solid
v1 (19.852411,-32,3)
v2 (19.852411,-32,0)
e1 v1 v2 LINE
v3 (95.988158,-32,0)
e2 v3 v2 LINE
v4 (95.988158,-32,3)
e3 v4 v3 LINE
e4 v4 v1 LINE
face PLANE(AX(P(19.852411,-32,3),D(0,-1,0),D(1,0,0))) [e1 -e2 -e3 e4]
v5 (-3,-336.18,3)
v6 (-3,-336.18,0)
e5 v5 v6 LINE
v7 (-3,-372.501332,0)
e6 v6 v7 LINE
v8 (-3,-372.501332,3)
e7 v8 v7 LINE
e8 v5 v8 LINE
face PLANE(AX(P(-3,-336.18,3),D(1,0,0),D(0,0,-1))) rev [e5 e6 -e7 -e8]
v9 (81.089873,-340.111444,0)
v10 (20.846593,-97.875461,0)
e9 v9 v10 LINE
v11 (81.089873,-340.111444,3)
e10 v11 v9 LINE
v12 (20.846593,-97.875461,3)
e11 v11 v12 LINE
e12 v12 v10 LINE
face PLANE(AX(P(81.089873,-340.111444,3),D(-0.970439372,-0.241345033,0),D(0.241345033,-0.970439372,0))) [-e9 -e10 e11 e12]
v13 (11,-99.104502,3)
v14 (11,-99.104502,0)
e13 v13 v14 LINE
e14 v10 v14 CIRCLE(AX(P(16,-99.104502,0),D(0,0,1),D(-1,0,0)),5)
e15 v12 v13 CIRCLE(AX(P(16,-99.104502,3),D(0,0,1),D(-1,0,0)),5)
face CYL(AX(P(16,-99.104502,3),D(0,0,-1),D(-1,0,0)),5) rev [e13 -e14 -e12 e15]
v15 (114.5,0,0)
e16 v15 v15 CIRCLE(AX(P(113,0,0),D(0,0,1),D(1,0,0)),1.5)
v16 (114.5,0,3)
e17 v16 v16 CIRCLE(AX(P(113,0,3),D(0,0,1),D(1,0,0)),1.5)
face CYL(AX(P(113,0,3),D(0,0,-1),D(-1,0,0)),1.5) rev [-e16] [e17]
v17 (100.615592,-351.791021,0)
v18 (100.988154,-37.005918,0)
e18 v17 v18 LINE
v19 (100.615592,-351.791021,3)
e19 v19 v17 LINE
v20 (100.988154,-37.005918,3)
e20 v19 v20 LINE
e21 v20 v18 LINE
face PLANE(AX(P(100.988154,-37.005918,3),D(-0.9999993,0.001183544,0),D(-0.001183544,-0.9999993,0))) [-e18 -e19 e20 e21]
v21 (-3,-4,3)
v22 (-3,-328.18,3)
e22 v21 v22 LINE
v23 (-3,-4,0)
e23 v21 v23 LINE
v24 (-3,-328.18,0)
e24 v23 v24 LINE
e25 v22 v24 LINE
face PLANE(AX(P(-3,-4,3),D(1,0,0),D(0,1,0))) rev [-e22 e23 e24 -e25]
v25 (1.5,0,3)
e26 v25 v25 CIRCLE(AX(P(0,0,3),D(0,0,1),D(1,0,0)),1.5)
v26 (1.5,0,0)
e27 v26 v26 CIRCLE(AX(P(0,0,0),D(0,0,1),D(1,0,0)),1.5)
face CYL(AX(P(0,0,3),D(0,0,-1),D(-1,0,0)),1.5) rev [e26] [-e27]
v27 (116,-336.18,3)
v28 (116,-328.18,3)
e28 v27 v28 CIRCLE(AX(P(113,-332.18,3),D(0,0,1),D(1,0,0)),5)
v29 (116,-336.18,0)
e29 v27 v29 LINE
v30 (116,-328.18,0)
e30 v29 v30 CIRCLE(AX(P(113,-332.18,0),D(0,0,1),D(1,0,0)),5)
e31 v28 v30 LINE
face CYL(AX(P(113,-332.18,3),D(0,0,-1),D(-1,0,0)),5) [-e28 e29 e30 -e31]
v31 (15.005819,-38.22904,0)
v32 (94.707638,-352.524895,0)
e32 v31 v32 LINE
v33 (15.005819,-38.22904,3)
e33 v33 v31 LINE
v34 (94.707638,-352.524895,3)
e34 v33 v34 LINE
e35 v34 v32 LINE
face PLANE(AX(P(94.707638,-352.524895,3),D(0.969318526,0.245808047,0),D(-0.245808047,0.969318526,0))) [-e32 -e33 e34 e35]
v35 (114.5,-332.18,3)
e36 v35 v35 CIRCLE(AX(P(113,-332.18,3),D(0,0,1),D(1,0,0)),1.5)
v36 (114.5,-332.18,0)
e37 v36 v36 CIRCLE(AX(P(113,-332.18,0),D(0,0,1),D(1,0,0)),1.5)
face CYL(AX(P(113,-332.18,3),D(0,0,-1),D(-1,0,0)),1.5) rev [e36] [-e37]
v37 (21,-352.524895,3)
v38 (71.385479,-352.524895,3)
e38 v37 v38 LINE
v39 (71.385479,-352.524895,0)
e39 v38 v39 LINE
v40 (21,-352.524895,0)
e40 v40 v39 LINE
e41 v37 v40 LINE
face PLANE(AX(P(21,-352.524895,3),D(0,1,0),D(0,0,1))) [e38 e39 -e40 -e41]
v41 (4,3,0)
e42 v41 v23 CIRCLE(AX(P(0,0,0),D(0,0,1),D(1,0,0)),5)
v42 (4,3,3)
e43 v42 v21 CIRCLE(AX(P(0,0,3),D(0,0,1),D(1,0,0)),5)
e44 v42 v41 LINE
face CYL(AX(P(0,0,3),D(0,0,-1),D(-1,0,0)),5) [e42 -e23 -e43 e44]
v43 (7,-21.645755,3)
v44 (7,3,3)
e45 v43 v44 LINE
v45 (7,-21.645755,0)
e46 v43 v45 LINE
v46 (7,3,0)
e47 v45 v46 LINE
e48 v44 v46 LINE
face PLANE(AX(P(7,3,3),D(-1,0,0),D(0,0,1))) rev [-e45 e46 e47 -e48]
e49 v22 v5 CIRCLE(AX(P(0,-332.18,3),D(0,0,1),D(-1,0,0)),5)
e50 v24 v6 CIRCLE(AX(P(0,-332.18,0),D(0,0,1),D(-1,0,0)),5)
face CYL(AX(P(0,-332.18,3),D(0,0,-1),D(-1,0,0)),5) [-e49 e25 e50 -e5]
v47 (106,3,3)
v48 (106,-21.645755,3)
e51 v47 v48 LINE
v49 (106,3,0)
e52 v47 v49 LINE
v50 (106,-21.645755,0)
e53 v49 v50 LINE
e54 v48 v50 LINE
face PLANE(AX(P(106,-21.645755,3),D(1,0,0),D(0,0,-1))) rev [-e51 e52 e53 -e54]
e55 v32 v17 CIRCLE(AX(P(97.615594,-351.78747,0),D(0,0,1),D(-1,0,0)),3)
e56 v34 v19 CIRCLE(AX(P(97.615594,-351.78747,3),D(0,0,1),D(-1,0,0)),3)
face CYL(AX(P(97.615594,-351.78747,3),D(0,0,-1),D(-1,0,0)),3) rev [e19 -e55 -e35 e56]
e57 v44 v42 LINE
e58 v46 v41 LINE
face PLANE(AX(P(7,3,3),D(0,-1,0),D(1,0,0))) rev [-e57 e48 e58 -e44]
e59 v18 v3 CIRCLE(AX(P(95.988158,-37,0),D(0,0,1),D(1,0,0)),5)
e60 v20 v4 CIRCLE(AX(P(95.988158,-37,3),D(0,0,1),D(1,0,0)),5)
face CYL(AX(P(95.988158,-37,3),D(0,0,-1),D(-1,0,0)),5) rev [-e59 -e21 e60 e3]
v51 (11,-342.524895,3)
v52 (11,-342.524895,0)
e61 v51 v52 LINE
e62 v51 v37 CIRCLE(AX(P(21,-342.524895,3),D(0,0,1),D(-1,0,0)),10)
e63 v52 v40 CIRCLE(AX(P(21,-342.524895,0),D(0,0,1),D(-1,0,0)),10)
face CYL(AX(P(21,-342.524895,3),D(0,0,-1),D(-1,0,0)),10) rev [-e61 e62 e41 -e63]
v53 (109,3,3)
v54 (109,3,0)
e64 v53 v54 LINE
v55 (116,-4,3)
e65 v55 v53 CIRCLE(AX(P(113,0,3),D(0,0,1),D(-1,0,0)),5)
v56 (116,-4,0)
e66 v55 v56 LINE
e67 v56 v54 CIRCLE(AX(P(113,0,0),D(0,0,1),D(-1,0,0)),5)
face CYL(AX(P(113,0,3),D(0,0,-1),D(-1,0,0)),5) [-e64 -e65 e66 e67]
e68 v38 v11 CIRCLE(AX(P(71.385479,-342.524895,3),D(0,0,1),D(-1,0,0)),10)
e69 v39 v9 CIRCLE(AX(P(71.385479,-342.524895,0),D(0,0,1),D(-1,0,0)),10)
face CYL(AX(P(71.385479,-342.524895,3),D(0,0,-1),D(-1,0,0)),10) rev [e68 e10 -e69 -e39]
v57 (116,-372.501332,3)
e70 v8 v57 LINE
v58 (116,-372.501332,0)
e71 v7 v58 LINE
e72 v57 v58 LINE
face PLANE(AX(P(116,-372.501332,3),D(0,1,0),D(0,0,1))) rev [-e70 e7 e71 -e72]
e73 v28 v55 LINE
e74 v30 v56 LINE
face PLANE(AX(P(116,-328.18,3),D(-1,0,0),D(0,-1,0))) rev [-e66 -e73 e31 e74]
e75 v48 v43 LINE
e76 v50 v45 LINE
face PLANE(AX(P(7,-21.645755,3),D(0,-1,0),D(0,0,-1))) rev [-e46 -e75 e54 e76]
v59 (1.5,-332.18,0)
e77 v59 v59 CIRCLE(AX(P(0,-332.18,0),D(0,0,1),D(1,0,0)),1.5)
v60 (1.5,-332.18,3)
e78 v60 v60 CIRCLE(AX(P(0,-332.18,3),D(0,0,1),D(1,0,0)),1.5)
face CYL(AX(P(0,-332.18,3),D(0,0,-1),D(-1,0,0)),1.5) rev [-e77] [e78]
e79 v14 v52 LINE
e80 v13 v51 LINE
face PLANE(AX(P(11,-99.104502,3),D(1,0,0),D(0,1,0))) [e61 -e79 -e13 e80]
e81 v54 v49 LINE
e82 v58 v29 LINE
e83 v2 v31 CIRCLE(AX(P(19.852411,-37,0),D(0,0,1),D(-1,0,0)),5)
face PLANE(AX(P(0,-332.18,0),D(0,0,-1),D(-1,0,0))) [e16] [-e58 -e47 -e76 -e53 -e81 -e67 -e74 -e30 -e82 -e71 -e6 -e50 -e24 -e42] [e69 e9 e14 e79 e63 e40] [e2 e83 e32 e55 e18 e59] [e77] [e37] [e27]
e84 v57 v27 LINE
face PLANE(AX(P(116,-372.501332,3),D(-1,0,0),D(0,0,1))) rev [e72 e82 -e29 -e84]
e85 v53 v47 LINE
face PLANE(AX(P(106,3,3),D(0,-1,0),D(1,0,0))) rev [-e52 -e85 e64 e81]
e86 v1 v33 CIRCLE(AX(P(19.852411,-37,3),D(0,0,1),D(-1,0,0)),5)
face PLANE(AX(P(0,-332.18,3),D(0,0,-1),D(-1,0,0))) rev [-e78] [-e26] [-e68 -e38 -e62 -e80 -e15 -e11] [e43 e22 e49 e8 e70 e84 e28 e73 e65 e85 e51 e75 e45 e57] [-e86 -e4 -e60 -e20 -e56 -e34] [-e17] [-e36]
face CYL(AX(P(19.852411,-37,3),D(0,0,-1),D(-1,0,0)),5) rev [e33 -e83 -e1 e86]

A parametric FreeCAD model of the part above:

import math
import FreeCAD as App
import Part
import Sketcher
Q = App.Units.Quantity

doc = App.newDocument("Part")
body = doc.addObject("PartDesign::Body", "Body")

# Sketch on XY plane
sketch1 = body.newObject("Sketcher::SketchObject", "Sketch")
sketch1.AttachmentSupport = (doc.getObject("XY_Plane"), [""])
sketch1.MapMode = "FlatFace"
sketch1.addGeometry([
    Part.LineSegment(App.Vector(-3, -336.18, 0), App.Vector(-3, -372.501332, 0)),  # 0
    Part.LineSegment(App.Vector(-3, -372.501332, 0), App.Vector(116, -372.501332, 0)),  # 1
    Part.LineSegment(App.Vector(116, -372.501332, 0), App.Vector(116, -336.18, 0)),  # 2
    Part.ArcOfCircle(Part.Circle(App.Vector(113, -332.18, 0), App.Vector(0, 0, 1), 5), math.radians(-53.130102), math.radians(53.130102)),  # 3
    Part.LineSegment(App.Vector(116, -328.18, 0), App.Vector(116, -4, 0)),  # 4
    Part.ArcOfCircle(Part.Circle(App.Vector(113, 0, 0), App.Vector(0, 0, 1), 5), math.radians(-53.130102), math.radians(143.130102)),  # 5
    Part.LineSegment(App.Vector(109, 3, 0), App.Vector(106, 3, 0)),  # 6
    Part.LineSegment(App.Vector(106, 3, 0), App.Vector(106, -21.645755, 0)),  # 7
    Part.LineSegment(App.Vector(106, -21.645755, 0), App.Vector(7, -21.645755, 0)),  # 8
    Part.LineSegment(App.Vector(7, -21.645755, 0), App.Vector(7, 3, 0)),  # 9
    Part.LineSegment(App.Vector(7, 3, 0), App.Vector(4, 3, 0)),  # 10
    Part.ArcOfCircle(Part.Circle(App.Vector(0, 0, 0), App.Vector(0, 0, 1), 5), math.radians(36.869898), math.radians(233.130102)),  # 11
    Part.LineSegment(App.Vector(-3, -4, 0), App.Vector(-3, -328.18, 0)),  # 12
    Part.ArcOfCircle(Part.Circle(App.Vector(0, -332.18, 0), App.Vector(0, 0, 1), 5), math.radians(126.869898), math.radians(233.130102)),  # 13
    Part.Circle(App.Vector(0, -332.18, 0), App.Vector(0, 0, 1), 1.5),  # 14
    Part.LineSegment(App.Vector(11, -342.524895, 0), App.Vector(11, -99.104502, 0)),  # 15
    Part.ArcOfCircle(Part.Circle(App.Vector(16, -99.104502, 0), App.Vector(0, 0, 1), 5), math.radians(14.229592), math.radians(180)),  # 16
    Part.LineSegment(App.Vector(20.846593, -97.875461, 0), App.Vector(81.089873, -340.111444, 0)),  # 17
    Part.ArcOfCircle(Part.Circle(App.Vector(71.385479, -342.524895, 0), App.Vector(0, 0, 1), 10), math.radians(-90), math.radians(13.965939)),  # 18
    Part.LineSegment(App.Vector(71.385479, -352.524895, 0), App.Vector(21, -352.524895, 0)),  # 19
    Part.ArcOfCircle(Part.Circle(App.Vector(21, -342.524895, 0), App.Vector(0, 0, 1), 10), math.radians(180), math.radians(270)),  # 20
    Part.Circle(App.Vector(113, -332.18, 0), App.Vector(0, 0, 1), 1.5),  # 21
    Part.ArcOfCircle(Part.Circle(App.Vector(95.988158, -37, 0), App.Vector(0, 0, 1), 5), math.radians(-0.067812), math.radians(90)),  # 22
    Part.LineSegment(App.Vector(100.988154, -37.005918, 0), App.Vector(100.615592, -351.791021, 0)),  # 23
    Part.ArcOfCircle(Part.Circle(App.Vector(97.615594, -351.78747, 0), App.Vector(0, 0, 1), 3), math.radians(-165.770408), math.radians(-0.067812)),  # 24
    Part.LineSegment(App.Vector(94.707638, -352.524895, 0), App.Vector(15.005819, -38.22904, 0)),  # 25
    Part.ArcOfCircle(Part.Circle(App.Vector(19.852411, -37, 0), App.Vector(0, 0, 1), 5), math.radians(90), math.radians(194.229592)),  # 26
    Part.LineSegment(App.Vector(19.852411, -32, 0), App.Vector(95.988158, -32, 0)),  # 27
    Part.Circle(App.Vector(0, 0, 0), App.Vector(0, 0, 1), 1.5),  # 28
    Part.Circle(App.Vector(113, 0, 0), App.Vector(0, 0, 1), 1.5),  # 29
], False)
sketch1.addConstraint([
    Sketcher.Constraint("Coincident", 0, 2, 1, 1),
    Sketcher.Constraint("Coincident", 1, 2, 2, 1),
    Sketcher.Constraint("Coincident", 2, 2, 3, 1),
    Sketcher.Constraint("Coincident", 3, 2, 4, 1),
    Sketcher.Constraint("Coincident", 4, 2, 5, 1),
    Sketcher.Constraint("Coincident", 5, 2, 6, 1),
    Sketcher.Constraint("Coincident", 6, 2, 7, 1),
    Sketcher.Constraint("Coincident", 7, 2, 8, 1),
    Sketcher.Constraint("Coincident", 8, 2, 9, 1),
    Sketcher.Constraint("Coincident", 9, 2, 10, 1),
    Sketcher.Constraint("Coincident", 10, 2, 11, 1),
    Sketcher.Constraint("Coincident", 11, 2, 12, 1),
    Sketcher.Constraint("Coincident", 12, 2, 13, 1),
    Sketcher.Constraint("Coincident", 13, 2, 0, 1),
    Sketcher.Constraint("Coincident", 15, 2, 16, 2),
    Sketcher.Constraint("Coincident", 16, 1, 17, 1),
    Sketcher.Constraint("Coincident", 17, 2, 18, 2),
    Sketcher.Constraint("Coincident", 18, 1, 19, 1),
    Sketcher.Constraint("Coincident", 19, 2, 20, 2),
    Sketcher.Constraint("Coincident", 20, 1, 15, 1),
    Sketcher.Constraint("Coincident", 22, 1, 23, 1),
    Sketcher.Constraint("Coincident", 23, 2, 24, 2),
    Sketcher.Constraint("Coincident", 24, 1, 25, 1),
    Sketcher.Constraint("Coincident", 25, 2, 26, 2),
    Sketcher.Constraint("Coincident", 26, 1, 27, 1),
    Sketcher.Constraint("Coincident", 27, 2, 22, 2),
    Sketcher.Constraint("Vertical", 0),
    Sketcher.Constraint("Horizontal", 1),
    Sketcher.Constraint("Vertical", 2),
    Sketcher.Constraint("Vertical", 4),
    Sketcher.Constraint("Horizontal", 6),
    Sketcher.Constraint("Vertical", 7),
    Sketcher.Constraint("Horizontal", 8),
    Sketcher.Constraint("Vertical", 9),
    Sketcher.Constraint("Horizontal", 10),
    Sketcher.Constraint("Vertical", 12),
    Sketcher.Constraint("Vertical", 15),
    Sketcher.Constraint("Horizontal", 19),
    Sketcher.Constraint("Horizontal", 27),
    Sketcher.Constraint("Coincident", 11, 3, -1, 1),
    Sketcher.Constraint("Coincident", 28, 3, -1, 1),
    Sketcher.Constraint("Coincident", 14, 3, 13, 3),
    Sketcher.Constraint("Coincident", 21, 3, 3, 3),
    Sketcher.Constraint("Coincident", 29, 3, 5, 3),
    Sketcher.Constraint("PointOnObject", 5, 3, -1),
    Sketcher.Constraint("PointOnObject", 13, 3, -2),
    Sketcher.Constraint("Diameter", 14, Q("3 mm")),
    Sketcher.Constraint("Diameter", 21, Q("3 mm")),
    Sketcher.Constraint("Diameter", 28, Q("3 mm")),
    Sketcher.Constraint("Diameter", 29, Q("3 mm")),
    Sketcher.Constraint("Radius", 3, Q("5 mm")),
    Sketcher.Constraint("Radius", 5, Q("5 mm")),
    Sketcher.Constraint("Radius", 11, Q("5 mm")),
    Sketcher.Constraint("Radius", 13, Q("5 mm")),
    Sketcher.Constraint("Radius", 16, Q("5 mm")),
    Sketcher.Constraint("Radius", 18, Q("10 mm")),
    Sketcher.Constraint("Radius", 20, Q("10 mm")),
    Sketcher.Constraint("Radius", 22, Q("5 mm")),
    Sketcher.Constraint("Radius", 24, Q("3 mm")),
    Sketcher.Constraint("Radius", 26, Q("5 mm")),
    Sketcher.Constraint("DistanceX", 1, 1, 1, 2, Q("119 mm")),
    Sketcher.Constraint("DistanceX", 6, 2, 6, 1, Q("3 mm")),
    Sketcher.Constraint("DistanceX", 8, 2, 8, 1, Q("99 mm")),
    Sketcher.Constraint("DistanceX", 10, 2, 10, 1, Q("3 mm")),
    Sketcher.Constraint("DistanceX", -1, 1, 3, 3, Q("113 mm")),
    Sketcher.Constraint("DistanceX", -1, 1, 5, 3, Q("113 mm")),
    Sketcher.Constraint("DistanceX", -1, 1, 16, 3, Q("16 mm")),
    Sketcher.Constraint("DistanceY", 22, 3, -1, 1, Q("37 mm")),
    Sketcher.Constraint("DistanceX", 0, 2, -1, 1, Q("3 mm")),
    Sketcher.Constraint("DistanceX", -1, 1, 3, 2, Q("116 mm")),
    Sketcher.Constraint("DistanceX", -1, 1, 5, 2, Q("109 mm")),
    Sketcher.Constraint("DistanceX", 11, 2, -1, 1, Q("3 mm")),
    Sketcher.Constraint("DistanceX", -1, 1, 19, 2, Q("21 mm")),
    Sketcher.Constraint("DistanceY", 19, 2, 20, 1, Q("10 mm")),
    Sketcher.Constraint("DistanceY", 24, 1, 18, 3, Q("10 mm")),
    Sketcher.Constraint("DistanceY", 4, 1, 4, 2, Q("324.18 mm")),
    Sketcher.Constraint("DistanceY", 12, 2, 12, 1, Q("324.18 mm")),
    Sketcher.Constraint("DistanceX", 19, 2, 19, 1, Q("50.385479 mm")),
    Sketcher.Constraint("DistanceY", 0, 2, 0, 1, Q("36.321332 mm")),
    Sketcher.Constraint("DistanceY", 16, 3, -1, 1, Q("99.104502 mm")),
    Sketcher.Constraint("DistanceY", 15, 2, -1, 1, Q("99.104502 mm")),
    Sketcher.Constraint("Distance", 17, Q("249.614752 mm")),
    Sketcher.Constraint("DistanceX", 27, 1, 27, 2, Q("76.135746 mm")),
    Sketcher.Constraint("DistanceY", 7, 2, 7, 1, Q("24.645755 mm")),
    Sketcher.Constraint("DistanceY", 15, 1, 15, 2, Q("243.420393 mm")),
    Sketcher.Constraint("DistanceX", -1, 1, 18, 3, Q("71.385479 mm")),
    Sketcher.Constraint("DistanceY", 24, 3, -1, 1, Q("351.78747 mm")),
    Sketcher.Constraint("DistanceX", -1, 1, 26, 3, Q("19.852411 mm")),
    Sketcher.Constraint("DistanceY", 16, 1, -1, 1, Q("97.875461 mm")),
    Sketcher.Constraint("DistanceX", -1, 1, 23, 2, Q("100.615592 mm")),
    Sketcher.Constraint("DistanceY", 23, 2, -1, 1, Q("351.791021 mm")),
    Sketcher.Constraint("DistanceX", -1, 1, 25, 2, Q("15.005819 mm")),
    Sketcher.Constraint("DistanceX", -1, 1, 26, 1, Q("19.852411 mm")),
    Sketcher.Constraint("Distance", 23, Q("314.785324 mm")),
    Sketcher.Constraint("DistanceX", -1, 1, 22, 3, Q("95.988158 mm")),
])
pad1 = body.newObject("PartDesign::Pad", "Pad")
pad1.Profile = sketch1
pad1.Length = 3

doc.recompute()
